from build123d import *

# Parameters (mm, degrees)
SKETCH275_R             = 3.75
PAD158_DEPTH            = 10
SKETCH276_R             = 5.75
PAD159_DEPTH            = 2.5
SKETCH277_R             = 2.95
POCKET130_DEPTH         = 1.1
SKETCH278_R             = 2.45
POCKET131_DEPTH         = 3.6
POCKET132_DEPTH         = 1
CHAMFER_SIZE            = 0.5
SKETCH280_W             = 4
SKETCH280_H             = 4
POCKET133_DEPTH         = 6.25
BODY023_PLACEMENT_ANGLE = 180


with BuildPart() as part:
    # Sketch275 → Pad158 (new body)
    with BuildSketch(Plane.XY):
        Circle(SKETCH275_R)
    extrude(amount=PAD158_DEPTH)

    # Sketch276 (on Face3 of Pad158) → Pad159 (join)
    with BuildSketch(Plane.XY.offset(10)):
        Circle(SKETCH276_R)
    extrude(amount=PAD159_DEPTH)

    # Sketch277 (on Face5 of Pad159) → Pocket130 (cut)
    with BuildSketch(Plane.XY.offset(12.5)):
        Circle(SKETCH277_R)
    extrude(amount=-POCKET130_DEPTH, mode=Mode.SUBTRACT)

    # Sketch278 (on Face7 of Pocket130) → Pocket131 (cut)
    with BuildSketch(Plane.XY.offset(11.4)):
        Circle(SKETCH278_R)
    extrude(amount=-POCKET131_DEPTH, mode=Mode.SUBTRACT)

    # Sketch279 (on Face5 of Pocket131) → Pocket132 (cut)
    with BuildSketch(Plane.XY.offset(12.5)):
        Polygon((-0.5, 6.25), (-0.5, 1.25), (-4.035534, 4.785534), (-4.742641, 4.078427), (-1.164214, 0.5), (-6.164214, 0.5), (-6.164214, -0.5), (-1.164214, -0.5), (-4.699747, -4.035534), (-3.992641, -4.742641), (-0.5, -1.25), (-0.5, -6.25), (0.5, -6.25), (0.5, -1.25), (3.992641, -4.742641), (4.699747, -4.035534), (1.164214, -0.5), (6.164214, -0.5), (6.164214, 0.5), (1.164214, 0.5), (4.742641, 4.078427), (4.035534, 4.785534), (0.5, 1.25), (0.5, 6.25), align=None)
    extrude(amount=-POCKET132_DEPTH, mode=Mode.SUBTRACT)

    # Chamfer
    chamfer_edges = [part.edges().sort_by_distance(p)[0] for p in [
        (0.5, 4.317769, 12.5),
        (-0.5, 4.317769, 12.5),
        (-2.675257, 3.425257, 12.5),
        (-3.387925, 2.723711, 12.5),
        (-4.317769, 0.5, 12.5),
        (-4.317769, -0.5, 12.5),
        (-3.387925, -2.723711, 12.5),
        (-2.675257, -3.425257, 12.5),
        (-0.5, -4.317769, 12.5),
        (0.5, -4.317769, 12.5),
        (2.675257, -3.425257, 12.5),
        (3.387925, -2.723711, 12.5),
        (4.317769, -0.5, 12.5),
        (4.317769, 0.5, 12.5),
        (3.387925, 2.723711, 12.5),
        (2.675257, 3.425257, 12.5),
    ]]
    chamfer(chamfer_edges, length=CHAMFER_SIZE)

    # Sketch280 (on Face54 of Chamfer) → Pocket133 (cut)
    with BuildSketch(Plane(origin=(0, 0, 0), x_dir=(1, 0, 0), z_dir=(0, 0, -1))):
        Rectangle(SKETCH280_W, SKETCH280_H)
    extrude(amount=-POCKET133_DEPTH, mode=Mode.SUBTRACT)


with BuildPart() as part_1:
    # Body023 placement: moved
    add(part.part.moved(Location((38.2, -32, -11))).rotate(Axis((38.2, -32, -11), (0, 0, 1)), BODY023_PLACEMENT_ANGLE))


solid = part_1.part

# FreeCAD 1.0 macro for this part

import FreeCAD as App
import Part
import Sketcher
from FreeCAD import Vector


def edges_at(feature, points):
    """Names of the edges that pass closest to the given points."""
    edges = feature.Shape.Edges
    near = lambda p: min(range(len(edges)), key=lambda i: edges[i].distToShape(Part.Vertex(*p))[0])
    return sorted({f"Edge{near(p) + 1}" for p in points})


def add_polygon(sketch, points):
    """Adds a closed chain of lines whose ends are joined by coincident constraints."""
    first, n = sketch.GeometryCount, len(points)
    for a, b in zip(points, points[1:] + points[:1]):
        sketch.addGeometry(Part.LineSegment(App.Vector(*a, 0), App.Vector(*b, 0)), False)
    for i in range(n):
        sketch.addConstraint(Sketcher.Constraint("Coincident", first + i, 2, first + (i + 1) % n, 1))

doc = App.newDocument("Part")
body = doc.addObject("PartDesign::Body", "Body")

# Sketch on XY plane
sketch1 = body.newObject("Sketcher::SketchObject", "Sketch")
sketch1.AttachmentSupport = (doc.getObject("XY_Plane"), [""])
sketch1.MapMode = "FlatFace"
sketch1.addGeometry(Part.Circle(Vector(0, 0, 0), Vector(0, 0, 1), 3.8), False)
sketch1.addConstraint([
    Sketcher.Constraint("Coincident", 0, 3, -1, 1),
    Sketcher.Constraint("Diameter", 0, 7.5),
])
pad1 = body.newObject("PartDesign::Pad", "Pad")
pad1.Profile = sketch1
pad1.Length = 10

# Sketch on XY plane
sketch2 = body.newObject("Sketcher::SketchObject", "Sketch001")
sketch2.AttachmentSupport = (doc.getObject("XY_Plane"), [""])
sketch2.MapMode = "FlatFace"
sketch2.AttachmentOffset = App.Placement(Vector(0, 0, 10), App.Rotation())
sketch2.addGeometry(Part.Circle(Vector(0, 0, 0), Vector(0, 0, 1), 6), False)
sketch2.addConstraint([
    Sketcher.Constraint("Coincident", 0, 3, -1, 1),
    Sketcher.Constraint("Diameter", 0, 11.5),
])
pad2 = body.newObject("PartDesign::Pad", "Pad001")
pad2.Profile = sketch2
pad2.Length = 2.5

# Sketch on XY plane
sketch3 = body.newObject("Sketcher::SketchObject", "Sketch002")
sketch3.AttachmentSupport = (doc.getObject("XY_Plane"), [""])
sketch3.MapMode = "FlatFace"
sketch3.AttachmentOffset = App.Placement(Vector(0, 0, 12.5), App.Rotation())
sketch3.addGeometry(Part.Circle(Vector(0, 0, 0), Vector(0, 0, 1), 3), False)
sketch3.addConstraint([
    Sketcher.Constraint("Coincident", 0, 3, -1, 1),
    Sketcher.Constraint("Diameter", 0, 5.9),
])
pocket1 = body.newObject("PartDesign::Pocket", "Pocket")
pocket1.Profile = sketch3
pocket1.Length = 1.1

# Sketch on XY plane
sketch4 = body.newObject("Sketcher::SketchObject", "Sketch003")
sketch4.AttachmentSupport = (doc.getObject("XY_Plane"), [""])
sketch4.MapMode = "FlatFace"
sketch4.AttachmentOffset = App.Placement(Vector(0, 0, 11.4), App.Rotation())
sketch4.addGeometry(Part.Circle(Vector(0, 0, 0), Vector(0, 0, 1), 2.5), False)
sketch4.addConstraint([
    Sketcher.Constraint("Coincident", 0, 3, -1, 1),
    Sketcher.Constraint("Diameter", 0, 4.9),
])
pocket2 = body.newObject("PartDesign::Pocket", "Pocket001")
pocket2.Profile = sketch4
pocket2.Length = 3.6

# Sketch on XY plane
sketch5 = body.newObject("Sketcher::SketchObject", "Sketch004")
sketch5.AttachmentSupport = (doc.getObject("XY_Plane"), [""])
sketch5.MapMode = "FlatFace"
sketch5.AttachmentOffset = App.Placement(Vector(0, 0, 12.5), App.Rotation())
add_polygon(sketch5, [(-0.5, 6.2), (-0.5, 1.2), (-4, 4.8), (-4.7, 4.1), (-1.2, 0.5), (-6.2, 0.5), (-6.2, -0.5), (-1.2, -0.5), (-4.7, -4), (-4, -4.7), (-0.5, -1.2), (-0.5, -6.2), (0.5, -6.2), (0.5, -1.2), (4, -4.7), (4.7, -4), (1.2, -0.5), (6.2, -0.5), (6.2, 0.5), (1.2, 0.5), (4.7, 4.1), (4, 4.8), (0.5, 1.2), (0.5, 6.2)])  # lines 0-23
sketch5.addConstraint([
    Sketcher.Constraint("Vertical", 0),
    Sketcher.Constraint("Horizontal", 4),
    Sketcher.Constraint("Vertical", 5),
    Sketcher.Constraint("Horizontal", 6),
    Sketcher.Constraint("Vertical", 10),
    Sketcher.Constraint("Horizontal", 11),
    Sketcher.Constraint("Vertical", 12),
    Sketcher.Constraint("Horizontal", 16),
    Sketcher.Constraint("Vertical", 17),
    Sketcher.Constraint("Horizontal", 18),
    Sketcher.Constraint("Vertical", 22),
    Sketcher.Constraint("Horizontal", 23),
    Sketcher.Constraint("Symmetric", 0, 2, 12, 2, -1, 1),
    Sketcher.Constraint("Symmetric", 3, 2, 15, 2, -1, 1),
    Sketcher.Constraint("Symmetric", 5, 2, 17, 2, -1, 1),
    Sketcher.Constraint("Symmetric", 9, 2, 21, 2, -1, 1),
    Sketcher.Constraint("Symmetric", 9, 2, 12, 2, -2),
    Sketcher.Constraint("Symmetric", 8, 2, 13, 2, -2),
    Sketcher.Constraint("Symmetric", 7, 2, 14, 2, -2),
    Sketcher.Constraint("Symmetric", 6, 2, 15, 2, -2),
    Sketcher.Constraint("Symmetric", 2, 2, 19, 2, -2),
    Sketcher.Constraint("Symmetric", 1, 2, 20, 2, -2),
    Sketcher.Constraint("Perpendicular", 1, 2),
    Sketcher.Constraint("Perpendicular", 2, 3),
    Sketcher.Constraint("Perpendicular", 3, 7),
    Sketcher.Constraint("Perpendicular", 7, 8),
    Sketcher.Constraint("Perpendicular", 8, 9),
    Sketcher.Constraint("Perpendicular", 9, 13),
    Sketcher.Constraint("Perpendicular", 15, 19),
    Sketcher.Constraint("Equal", 18, 0),
    Sketcher.Constraint("Equal", 23, 5),
    Sketcher.Constraint("Equal", 0, 10),
    Sketcher.Constraint("Equal", 1, 7),
    Sketcher.Constraint("DistanceX", 4, 2, 4, 1, 5.0),
    Sketcher.Constraint("DistanceX", 11, 1, 11, 2, 1.0),
    Sketcher.Constraint("Distance", 1, 5.0),
    Sketcher.Constraint("Distance", 2, 1.0),
    Sketcher.Constraint("DistanceY", 9, 2, 0, 2, 2.5),
])
pocket3 = body.newObject("PartDesign::Pocket", "Pocket002")
pocket3.Profile = sketch5
pocket3.Length = 1
doc.recompute()

chamfer = body.newObject("PartDesign::Chamfer", "Chamfer")
chamfer.Base = (pocket3, edges_at(pocket3, [
    (0.5, 4.318, 12.5),
    (-0.5, 4.318, 12.5),
    (-2.675, 3.425, 12.5),
    (-3.388, 2.724, 12.5),
    (-4.318, 0.5, 12.5),
    (-4.318, -0.5, 12.5),
    (-3.388, -2.724, 12.5),
    (-2.675, -3.425, 12.5),
    (-0.5, -4.318, 12.5),
    (0.5, -4.318, 12.5),
    (2.675, -3.425, 12.5),
    (3.388, -2.724, 12.5),
    (4.318, -0.5, 12.5),
    (4.318, 0.5, 12.5),
    (3.388, 2.724, 12.5),
    (2.675, 3.425, 12.5),
]))
chamfer.Size = 0.5

# Sketch on XY plane
sketch6 = body.newObject("Sketcher::SketchObject", "Sketch005")
sketch6.AttachmentSupport = (doc.getObject("XY_Plane"), [""])
sketch6.MapMode = "FlatFace"
add_polygon(sketch6, [(-2, -2), (-2, 2), (2, 2), (2, -2)])  # lines 0-3
sketch6.addConstraint([
    Sketcher.Constraint("Vertical", 0),
    Sketcher.Constraint("Horizontal", 1),
    Sketcher.Constraint("Vertical", 2),
    Sketcher.Constraint("Horizontal", 3),
    Sketcher.Constraint("Symmetric", 0, 2, 2, 2, -1, 1),
    Sketcher.Constraint("Equal", 3, 0),
    Sketcher.Constraint("DistanceX", 1, 1, 1, 2, 4.0),
])
pocket4 = body.newObject("PartDesign::Pocket", "Pocket003")
pocket4.Profile = sketch6
pocket4.Length = 6.25
pocket4.Reversed = True
body2 = doc.addObject("PartDesign::Body", "Body001")
doc.recompute()

body.Placement = App.Placement(Vector(38.2, -32, -11), App.Rotation(Vector(0, 0, 1), 180))
boolean = body2.newObject("PartDesign::Boolean", "Boolean")
boolean.Type = "Fuse"
boolean.addObjects([body])

doc.recompute()
